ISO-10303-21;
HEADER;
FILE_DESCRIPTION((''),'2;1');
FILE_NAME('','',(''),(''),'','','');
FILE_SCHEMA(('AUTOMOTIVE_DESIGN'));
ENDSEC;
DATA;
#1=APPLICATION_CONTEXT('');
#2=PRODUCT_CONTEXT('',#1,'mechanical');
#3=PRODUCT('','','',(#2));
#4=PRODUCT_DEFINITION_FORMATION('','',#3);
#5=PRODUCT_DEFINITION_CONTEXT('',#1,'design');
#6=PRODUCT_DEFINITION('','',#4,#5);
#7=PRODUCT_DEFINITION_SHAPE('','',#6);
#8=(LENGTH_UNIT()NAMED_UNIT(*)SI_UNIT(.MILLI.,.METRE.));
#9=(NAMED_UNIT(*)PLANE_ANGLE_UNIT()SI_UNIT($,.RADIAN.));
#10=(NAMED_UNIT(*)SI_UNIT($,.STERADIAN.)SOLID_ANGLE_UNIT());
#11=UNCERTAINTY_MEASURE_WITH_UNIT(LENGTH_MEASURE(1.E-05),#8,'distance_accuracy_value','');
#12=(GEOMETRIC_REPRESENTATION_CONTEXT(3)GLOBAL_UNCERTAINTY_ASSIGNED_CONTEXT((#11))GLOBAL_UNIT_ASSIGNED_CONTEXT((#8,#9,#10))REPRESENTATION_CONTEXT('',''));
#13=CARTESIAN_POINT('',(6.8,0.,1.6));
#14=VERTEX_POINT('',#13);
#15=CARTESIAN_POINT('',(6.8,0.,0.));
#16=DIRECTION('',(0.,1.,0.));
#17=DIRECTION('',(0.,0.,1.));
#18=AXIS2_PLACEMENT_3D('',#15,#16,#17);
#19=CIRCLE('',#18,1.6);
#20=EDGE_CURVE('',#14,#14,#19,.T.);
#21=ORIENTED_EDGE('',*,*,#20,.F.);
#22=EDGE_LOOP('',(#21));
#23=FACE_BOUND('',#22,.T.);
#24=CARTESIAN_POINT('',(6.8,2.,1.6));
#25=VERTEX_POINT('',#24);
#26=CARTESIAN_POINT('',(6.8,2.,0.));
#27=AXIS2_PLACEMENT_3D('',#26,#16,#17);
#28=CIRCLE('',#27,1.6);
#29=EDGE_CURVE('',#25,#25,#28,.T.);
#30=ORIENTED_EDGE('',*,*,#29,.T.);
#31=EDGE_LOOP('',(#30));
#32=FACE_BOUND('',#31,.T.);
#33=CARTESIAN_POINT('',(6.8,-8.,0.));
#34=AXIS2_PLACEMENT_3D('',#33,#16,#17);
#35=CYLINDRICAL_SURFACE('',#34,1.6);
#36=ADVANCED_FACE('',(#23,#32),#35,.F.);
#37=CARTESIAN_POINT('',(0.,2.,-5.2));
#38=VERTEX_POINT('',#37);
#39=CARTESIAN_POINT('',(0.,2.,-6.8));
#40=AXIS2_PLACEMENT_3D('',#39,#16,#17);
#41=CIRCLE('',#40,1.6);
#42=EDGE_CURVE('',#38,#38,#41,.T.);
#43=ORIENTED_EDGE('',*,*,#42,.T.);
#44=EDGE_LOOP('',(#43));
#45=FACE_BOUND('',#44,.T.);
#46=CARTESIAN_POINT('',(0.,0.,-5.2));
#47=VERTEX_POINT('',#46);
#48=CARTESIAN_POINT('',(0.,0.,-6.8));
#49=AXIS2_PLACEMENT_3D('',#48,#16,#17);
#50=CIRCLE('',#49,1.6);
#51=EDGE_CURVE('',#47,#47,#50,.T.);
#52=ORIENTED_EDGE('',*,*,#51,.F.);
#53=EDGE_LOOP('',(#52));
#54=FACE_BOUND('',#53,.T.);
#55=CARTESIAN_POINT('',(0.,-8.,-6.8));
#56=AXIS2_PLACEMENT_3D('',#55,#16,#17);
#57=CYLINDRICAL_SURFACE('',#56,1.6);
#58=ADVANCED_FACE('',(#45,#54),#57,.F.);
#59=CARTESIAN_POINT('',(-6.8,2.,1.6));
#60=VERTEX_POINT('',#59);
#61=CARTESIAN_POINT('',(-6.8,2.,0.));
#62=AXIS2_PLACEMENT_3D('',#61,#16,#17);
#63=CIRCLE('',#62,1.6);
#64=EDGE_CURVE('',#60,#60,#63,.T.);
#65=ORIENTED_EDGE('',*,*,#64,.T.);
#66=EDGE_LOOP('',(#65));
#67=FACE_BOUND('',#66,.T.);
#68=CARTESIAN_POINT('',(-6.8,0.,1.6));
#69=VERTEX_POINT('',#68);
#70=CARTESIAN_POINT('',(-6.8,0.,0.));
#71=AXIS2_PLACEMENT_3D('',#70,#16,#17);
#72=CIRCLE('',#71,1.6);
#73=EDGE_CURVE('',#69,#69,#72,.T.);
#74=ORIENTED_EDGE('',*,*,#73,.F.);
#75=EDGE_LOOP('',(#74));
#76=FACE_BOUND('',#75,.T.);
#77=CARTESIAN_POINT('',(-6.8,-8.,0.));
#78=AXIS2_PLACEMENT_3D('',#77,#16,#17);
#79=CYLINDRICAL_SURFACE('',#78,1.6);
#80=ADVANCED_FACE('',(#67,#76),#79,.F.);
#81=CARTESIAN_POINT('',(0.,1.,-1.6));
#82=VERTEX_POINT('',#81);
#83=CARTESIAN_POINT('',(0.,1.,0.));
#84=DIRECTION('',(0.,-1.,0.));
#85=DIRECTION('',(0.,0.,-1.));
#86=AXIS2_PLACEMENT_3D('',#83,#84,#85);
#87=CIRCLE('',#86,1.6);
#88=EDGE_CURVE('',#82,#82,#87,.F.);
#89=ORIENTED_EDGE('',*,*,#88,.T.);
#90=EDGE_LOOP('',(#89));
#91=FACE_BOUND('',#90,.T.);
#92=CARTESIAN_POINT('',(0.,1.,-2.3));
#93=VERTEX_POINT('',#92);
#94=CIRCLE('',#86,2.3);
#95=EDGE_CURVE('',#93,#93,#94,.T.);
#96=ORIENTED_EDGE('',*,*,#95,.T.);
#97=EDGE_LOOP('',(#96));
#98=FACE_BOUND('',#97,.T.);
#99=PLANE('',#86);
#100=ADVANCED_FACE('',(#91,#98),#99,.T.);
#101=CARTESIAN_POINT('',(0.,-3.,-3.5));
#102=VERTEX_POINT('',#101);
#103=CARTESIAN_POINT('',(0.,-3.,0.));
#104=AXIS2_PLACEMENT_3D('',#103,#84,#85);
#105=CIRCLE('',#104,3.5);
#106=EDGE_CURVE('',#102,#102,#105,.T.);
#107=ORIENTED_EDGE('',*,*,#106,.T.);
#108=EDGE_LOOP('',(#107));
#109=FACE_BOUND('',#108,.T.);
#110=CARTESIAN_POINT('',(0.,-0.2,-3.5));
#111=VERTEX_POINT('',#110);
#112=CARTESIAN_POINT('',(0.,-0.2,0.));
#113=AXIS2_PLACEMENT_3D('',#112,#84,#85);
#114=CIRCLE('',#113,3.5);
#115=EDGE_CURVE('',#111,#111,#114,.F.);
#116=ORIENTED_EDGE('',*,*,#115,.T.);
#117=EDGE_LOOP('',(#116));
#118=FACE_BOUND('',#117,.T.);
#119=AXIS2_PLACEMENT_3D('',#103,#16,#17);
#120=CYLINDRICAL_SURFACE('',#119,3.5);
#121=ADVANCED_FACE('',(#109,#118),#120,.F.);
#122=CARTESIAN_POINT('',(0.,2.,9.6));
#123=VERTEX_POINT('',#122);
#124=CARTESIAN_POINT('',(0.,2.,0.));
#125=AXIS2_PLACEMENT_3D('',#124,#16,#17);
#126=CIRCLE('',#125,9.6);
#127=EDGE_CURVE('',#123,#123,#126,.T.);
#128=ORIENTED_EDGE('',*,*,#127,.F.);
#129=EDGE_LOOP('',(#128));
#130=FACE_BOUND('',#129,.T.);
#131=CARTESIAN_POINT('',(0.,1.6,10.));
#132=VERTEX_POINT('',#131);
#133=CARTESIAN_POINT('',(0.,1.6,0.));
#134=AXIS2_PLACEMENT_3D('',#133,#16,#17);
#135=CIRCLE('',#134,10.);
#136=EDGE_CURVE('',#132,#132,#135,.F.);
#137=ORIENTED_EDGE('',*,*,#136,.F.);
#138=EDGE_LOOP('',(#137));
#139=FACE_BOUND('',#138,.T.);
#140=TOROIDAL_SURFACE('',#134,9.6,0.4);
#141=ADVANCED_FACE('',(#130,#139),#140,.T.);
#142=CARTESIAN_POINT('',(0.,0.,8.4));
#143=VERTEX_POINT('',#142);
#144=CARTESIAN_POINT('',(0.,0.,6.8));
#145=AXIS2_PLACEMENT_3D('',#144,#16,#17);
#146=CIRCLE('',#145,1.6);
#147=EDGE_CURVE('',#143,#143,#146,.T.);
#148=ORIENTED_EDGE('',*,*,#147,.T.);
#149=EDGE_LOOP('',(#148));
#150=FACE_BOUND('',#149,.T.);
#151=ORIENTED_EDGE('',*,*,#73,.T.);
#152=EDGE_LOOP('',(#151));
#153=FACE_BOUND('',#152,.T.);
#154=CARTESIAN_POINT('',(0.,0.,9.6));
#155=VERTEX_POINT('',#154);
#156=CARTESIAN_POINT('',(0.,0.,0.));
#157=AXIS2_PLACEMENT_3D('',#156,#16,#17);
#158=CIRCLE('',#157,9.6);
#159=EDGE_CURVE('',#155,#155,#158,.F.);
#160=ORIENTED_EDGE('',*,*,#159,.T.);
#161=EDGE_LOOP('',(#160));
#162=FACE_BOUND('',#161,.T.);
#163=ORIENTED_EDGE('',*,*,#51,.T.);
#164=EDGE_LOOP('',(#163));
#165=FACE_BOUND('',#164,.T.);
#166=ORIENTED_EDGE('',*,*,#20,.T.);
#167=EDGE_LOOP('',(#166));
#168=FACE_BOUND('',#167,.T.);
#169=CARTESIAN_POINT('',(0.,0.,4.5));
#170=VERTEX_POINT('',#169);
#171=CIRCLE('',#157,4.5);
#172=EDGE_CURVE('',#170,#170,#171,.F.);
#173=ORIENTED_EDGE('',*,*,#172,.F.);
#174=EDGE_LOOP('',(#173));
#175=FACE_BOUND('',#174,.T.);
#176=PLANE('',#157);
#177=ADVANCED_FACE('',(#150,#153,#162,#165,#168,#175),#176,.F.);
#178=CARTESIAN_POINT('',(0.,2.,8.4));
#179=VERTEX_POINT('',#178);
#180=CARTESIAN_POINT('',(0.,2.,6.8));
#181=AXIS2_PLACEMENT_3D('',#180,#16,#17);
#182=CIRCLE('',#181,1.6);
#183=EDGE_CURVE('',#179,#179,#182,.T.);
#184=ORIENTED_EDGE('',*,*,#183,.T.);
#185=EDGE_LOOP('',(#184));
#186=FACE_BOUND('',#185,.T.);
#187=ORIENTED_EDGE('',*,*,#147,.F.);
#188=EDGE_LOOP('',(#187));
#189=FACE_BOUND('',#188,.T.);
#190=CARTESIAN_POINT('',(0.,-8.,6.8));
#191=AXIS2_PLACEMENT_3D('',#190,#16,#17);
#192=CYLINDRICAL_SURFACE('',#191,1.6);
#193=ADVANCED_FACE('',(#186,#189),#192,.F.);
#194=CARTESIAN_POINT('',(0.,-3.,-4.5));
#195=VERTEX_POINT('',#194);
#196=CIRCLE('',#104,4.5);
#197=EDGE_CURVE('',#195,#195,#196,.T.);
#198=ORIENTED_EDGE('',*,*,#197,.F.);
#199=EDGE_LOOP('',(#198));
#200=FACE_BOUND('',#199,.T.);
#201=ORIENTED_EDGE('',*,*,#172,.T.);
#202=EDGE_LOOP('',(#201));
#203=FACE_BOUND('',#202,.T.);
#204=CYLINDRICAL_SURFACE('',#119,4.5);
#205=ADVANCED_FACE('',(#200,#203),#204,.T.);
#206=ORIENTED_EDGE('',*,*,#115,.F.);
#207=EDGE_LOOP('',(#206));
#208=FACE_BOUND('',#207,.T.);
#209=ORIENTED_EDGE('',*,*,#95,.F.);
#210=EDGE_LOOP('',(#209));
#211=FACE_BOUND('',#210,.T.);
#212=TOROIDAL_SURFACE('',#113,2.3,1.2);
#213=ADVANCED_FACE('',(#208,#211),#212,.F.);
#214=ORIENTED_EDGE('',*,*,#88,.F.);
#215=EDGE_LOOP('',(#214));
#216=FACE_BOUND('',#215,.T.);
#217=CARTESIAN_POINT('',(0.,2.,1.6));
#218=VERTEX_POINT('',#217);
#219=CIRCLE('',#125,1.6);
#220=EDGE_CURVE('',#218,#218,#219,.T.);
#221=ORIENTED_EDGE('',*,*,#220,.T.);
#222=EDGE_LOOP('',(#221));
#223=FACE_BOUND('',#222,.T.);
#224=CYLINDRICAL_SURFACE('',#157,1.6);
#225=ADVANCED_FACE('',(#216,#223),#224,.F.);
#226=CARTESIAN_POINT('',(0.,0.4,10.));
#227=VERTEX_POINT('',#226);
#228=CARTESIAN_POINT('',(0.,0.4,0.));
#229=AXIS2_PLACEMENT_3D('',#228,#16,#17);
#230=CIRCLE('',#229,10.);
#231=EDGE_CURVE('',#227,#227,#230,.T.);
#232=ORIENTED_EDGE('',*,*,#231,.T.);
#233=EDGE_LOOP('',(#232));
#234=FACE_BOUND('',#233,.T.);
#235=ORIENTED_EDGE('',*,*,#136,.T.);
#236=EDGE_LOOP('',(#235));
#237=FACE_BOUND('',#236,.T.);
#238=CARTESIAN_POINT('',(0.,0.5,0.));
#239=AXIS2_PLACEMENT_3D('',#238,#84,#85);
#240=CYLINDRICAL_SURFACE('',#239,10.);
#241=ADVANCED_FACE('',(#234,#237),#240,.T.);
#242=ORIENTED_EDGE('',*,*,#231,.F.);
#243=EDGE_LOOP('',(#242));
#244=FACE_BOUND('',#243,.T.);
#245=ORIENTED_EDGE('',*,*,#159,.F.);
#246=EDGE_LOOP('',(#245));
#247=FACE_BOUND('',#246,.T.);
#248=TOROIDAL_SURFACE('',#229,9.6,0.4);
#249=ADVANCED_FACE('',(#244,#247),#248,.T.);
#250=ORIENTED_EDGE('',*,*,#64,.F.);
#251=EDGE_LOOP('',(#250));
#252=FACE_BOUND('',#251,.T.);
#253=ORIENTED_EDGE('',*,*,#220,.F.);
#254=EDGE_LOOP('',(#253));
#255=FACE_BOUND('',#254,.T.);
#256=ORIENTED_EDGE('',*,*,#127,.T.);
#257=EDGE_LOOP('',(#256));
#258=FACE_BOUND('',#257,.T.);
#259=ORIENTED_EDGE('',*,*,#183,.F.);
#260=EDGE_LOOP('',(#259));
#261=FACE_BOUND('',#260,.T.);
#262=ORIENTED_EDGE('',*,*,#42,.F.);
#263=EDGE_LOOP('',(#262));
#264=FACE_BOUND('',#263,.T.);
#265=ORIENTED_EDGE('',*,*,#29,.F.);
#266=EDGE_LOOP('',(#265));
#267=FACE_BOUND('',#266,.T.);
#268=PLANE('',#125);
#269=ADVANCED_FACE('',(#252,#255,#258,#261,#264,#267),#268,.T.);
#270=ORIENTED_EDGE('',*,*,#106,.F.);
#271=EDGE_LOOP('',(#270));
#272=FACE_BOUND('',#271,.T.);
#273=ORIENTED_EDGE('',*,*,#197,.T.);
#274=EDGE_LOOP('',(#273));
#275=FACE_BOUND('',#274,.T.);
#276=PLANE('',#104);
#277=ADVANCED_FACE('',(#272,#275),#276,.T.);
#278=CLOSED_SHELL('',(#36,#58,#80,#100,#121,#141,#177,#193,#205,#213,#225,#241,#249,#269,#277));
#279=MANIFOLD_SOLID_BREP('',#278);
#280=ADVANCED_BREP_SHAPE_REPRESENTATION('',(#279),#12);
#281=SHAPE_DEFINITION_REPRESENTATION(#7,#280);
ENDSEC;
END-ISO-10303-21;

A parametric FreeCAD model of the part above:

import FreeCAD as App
import Part
import Sketcher


def edges_at(feature, points):
    """Names of the edges that pass closest to the given points."""
    edges = feature.Shape.Edges
    near = lambda p: min(range(len(edges)), key=lambda i: edges[i].distToShape(Part.Vertex(*p))[0])
    return sorted({f"Edge{near(p) + 1}" for p in points})

doc = App.newDocument("Part")
body = doc.addObject("PartDesign::Body", "Body")

sketch1 = doc.addObject("Sketcher::SketchObject", "Sketch")
body.addObject(sketch1)
sketch1.AttachmentSupport = (doc.XZ_Plane, [""])
sketch1.MapMode = "FlatFace"
sketch1.addGeometry(Part.Circle(App.Vector(0, 0, 0), App.Vector(0, 0, 1), 10), False)
sketch1.addConstraint([
    Sketcher.Constraint("Coincident", 0, 3, -1, 1),
    Sketcher.Constraint("Diameter", 0, 20.0),
])
pad1 = doc.addObject("PartDesign::Pad", "Pad")
body.addObject(pad1)
pad1.Profile = sketch1
pad1.Length = 0.5
pad1.Reversed = True

sketch2 = doc.addObject("Sketcher::SketchObject", "Sketch001")
body.addObject(sketch2)
sketch2.AttachmentSupport = (doc.XZ_Plane, [""])
sketch2.MapMode = "FlatFace"
sketch2.AttachmentOffset = App.Placement(App.Vector(0, 0, -0.5), App.Rotation())
sketch2.addGeometry(Part.Circle(App.Vector(0, 0, 0), App.Vector(0, 0, 1), 10), False)
sketch2.addConstraint([
    Sketcher.Constraint("Coincident", 0, 3, -1, 1),
    Sketcher.Constraint("Diameter", 0, 20.0),
])
pad2 = doc.addObject("PartDesign::Pad", "Pad001")
body.addObject(pad2)
pad2.Profile = sketch2
pad2.Length = 0.5
pad2.Reversed = True

sketch3 = doc.addObject("Sketcher::SketchObject", "Sketch002")
body.addObject(sketch3)
sketch3.AttachmentSupport = (doc.XZ_Plane, [""])
sketch3.MapMode = "FlatFace"
sketch3.AttachmentOffset = App.Placement(App.Vector(0, 0, -1), App.Rotation())
sketch3.addGeometry(Part.Circle(App.Vector(0, 0, 0), App.Vector(0, 0, 1), 10), False)
sketch3.addConstraint([
    Sketcher.Constraint("Coincident", 0, 3, -1, 1),
    Sketcher.Constraint("Diameter", 0, 20.0),
])
pad3 = doc.addObject("PartDesign::Pad", "Pad002")
body.addObject(pad3)
pad3.Profile = sketch3
pad3.Length = 1
pad3.Reversed = True

sketch4 = doc.addObject("Sketcher::SketchObject", "Sketch003")
body.addObject(sketch4)
sketch4.AttachmentSupport = (doc.XZ_Plane, [""])
sketch4.MapMode = "FlatFace"
sketch4.AttachmentOffset = App.Placement(App.Vector(0, 0, -2), App.Rotation())
sketch4.addGeometry(Part.Circle(App.Vector(0, 0, 0), App.Vector(0, 0, 1), 1.6), False)
sketch4.addConstraint([
    Sketcher.Constraint("Coincident", 0, 3, -1, 1),
    Sketcher.Constraint("Diameter", 0, 3.2),
])
pocket1 = doc.addObject("PartDesign::Pocket", "Pocket")
body.addObject(pocket1)
pocket1.Profile = sketch4
pocket1.Type = "ThroughAll"
pocket1.Reversed = True

sketch5 = doc.addObject("Sketcher::SketchObject", "Sketch004")
body.addObject(sketch5)
sketch5.AttachmentSupport = (doc.XZ_Plane, [""])
sketch5.MapMode = "FlatFace"
sketch5.AttachmentOffset = App.Placement(App.Vector(0, 0, -2), App.Rotation())
sketch5.addGeometry([
    Part.Circle(App.Vector(-6.8, 0, 0), App.Vector(0, 0, 1), 1.6),
    Part.Circle(App.Vector(6.8, 0, 0), App.Vector(0, 0, 1), 1.6),
    Part.Circle(App.Vector(0, -6.8, 0), App.Vector(0, 0, 1), 1.6),
    Part.Circle(App.Vector(0, 6.8, 0), App.Vector(0, 0, 1), 1.6),
], False)
sketch5.addConstraint([
    Sketcher.Constraint("Equal", 0, 1),
    Sketcher.Constraint("Equal", 1, 2),
    Sketcher.Constraint("Equal", 2, 3),
    Sketcher.Constraint("Symmetric", 0, 3, 1, 3, -1, 1),
    Sketcher.Constraint("Symmetric", 2, 3, 3, 3, -1, 1),
    Sketcher.Constraint("PointOnObject", 0, 3, -1),
    Sketcher.Constraint("PointOnObject", 2, 3, -2),
    Sketcher.Constraint("Diameter", 0, 3.2),
    Sketcher.Constraint("DistanceX", 0, 3, -1, 1, 6.8),
    Sketcher.Constraint("DistanceY", 2, 3, -1, 1, 6.8),
])
pocket2 = doc.addObject("PartDesign::Pocket", "Pocket001")
body.addObject(pocket2)
pocket2.Profile = sketch5
pocket2.Length = 10
pocket2.Reversed = True
doc.recompute()

fillet = doc.addObject("PartDesign::Fillet", "Fillet")
body.addObject(fillet)
fillet.Base = (pocket2, edges_at(pocket2, [(-10, 0, 0), (-10, 2, 0)]))
fillet.Radius = 0.4

sketch6 = doc.addObject("Sketcher::SketchObject", "Sketch005")
body.addObject(sketch6)
sketch6.AttachmentSupport = (doc.XZ_Plane, [""])
sketch6.MapMode = "FlatFace"
sketch6.addGeometry([
    Part.Circle(App.Vector(0, 0, 0), App.Vector(0, 0, 1), 4.5),
    Part.Circle(App.Vector(0, 0, 0), App.Vector(0, 0, 1), 3.5),
], False)
sketch6.addConstraint([
    Sketcher.Constraint("Coincident", 0, 3, -1, 1),
    Sketcher.Constraint("Coincident", 1, 3, -1, 1),
    Sketcher.Constraint("Diameter", 0, 9.0),
    Sketcher.Constraint("Diameter", 1, 7.0),
])
pad4 = doc.addObject("PartDesign::Pad", "Pad003")
body.addObject(pad4)
pad4.Profile = sketch6
pad4.Length = 3

sketch7 = doc.addObject("Sketcher::SketchObject", "Sketch006")
body.addObject(sketch7)
sketch7.AttachmentSupport = (doc.XZ_Plane, [""])
sketch7.MapMode = "FlatFace"
sketch7.addGeometry(Part.Circle(App.Vector(0, 0, 0), App.Vector(0, 0, 1), 3.5), False)
sketch7.addConstraint([
    Sketcher.Constraint("Coincident", 0, 3, -1, 1),
    Sketcher.Constraint("Diameter", 0, 7.0),
])
pocket3 = doc.addObject("PartDesign::Pocket", "Pocket002")
body.addObject(pocket3)
pocket3.Profile = sketch7
pocket3.Length = 1
doc.recompute()

fillet2 = doc.addObject("PartDesign::Fillet", "Fillet001")
body.addObject(fillet2)
fillet2.Base = (pocket3, edges_at(pocket3, [(-3.5, 1, 0)]))
fillet2.Radius = 1.2

doc.recompute()
